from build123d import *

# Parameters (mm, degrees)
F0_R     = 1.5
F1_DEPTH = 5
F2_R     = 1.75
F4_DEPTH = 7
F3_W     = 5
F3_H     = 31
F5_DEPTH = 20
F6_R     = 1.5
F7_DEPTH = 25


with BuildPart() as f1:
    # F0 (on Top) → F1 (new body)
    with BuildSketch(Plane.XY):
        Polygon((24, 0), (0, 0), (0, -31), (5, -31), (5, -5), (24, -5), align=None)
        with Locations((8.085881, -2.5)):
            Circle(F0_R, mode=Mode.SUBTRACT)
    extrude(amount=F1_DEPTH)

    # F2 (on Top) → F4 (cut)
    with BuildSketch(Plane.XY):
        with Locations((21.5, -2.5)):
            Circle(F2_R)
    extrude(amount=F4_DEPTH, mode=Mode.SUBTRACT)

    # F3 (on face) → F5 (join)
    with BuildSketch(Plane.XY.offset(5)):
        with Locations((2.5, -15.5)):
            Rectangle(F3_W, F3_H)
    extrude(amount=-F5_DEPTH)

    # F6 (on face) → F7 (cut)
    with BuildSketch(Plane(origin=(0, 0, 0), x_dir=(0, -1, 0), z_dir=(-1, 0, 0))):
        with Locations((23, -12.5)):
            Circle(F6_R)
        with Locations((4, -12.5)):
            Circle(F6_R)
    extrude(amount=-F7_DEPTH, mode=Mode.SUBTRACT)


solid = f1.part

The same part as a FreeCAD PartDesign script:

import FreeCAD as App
import Part
import Sketcher
from FreeCAD import Vector
Q = App.Units.Quantity


def add_polygon(sketch, points):
    """Adds a closed chain of lines whose ends are joined by coincident constraints."""
    first, n = sketch.GeometryCount, len(points)
    for a, b in zip(points, points[1:] + points[:1]):
        sketch.addGeometry(Part.LineSegment(App.Vector(*a, 0), App.Vector(*b, 0)), False)
    for i in range(n):
        sketch.addConstraint(Sketcher.Constraint("Coincident", first + i, 2, first + (i + 1) % n, 1))

doc = App.newDocument("Part")
body = doc.addObject("PartDesign::Body", "Body")

sketch1 = doc.addObject("Sketcher::SketchObject", "Sketch")
body.addObject(sketch1)
sketch1.AttachmentSupport = (doc.XY_Plane, [""])
sketch1.MapMode = "FlatFace"
add_polygon(sketch1, [(24, 0), (0, 0), (0, -31), (5, -31), (5, -5), (24, -5)])
sketch1.addGeometry(Part.Circle(Vector(8.1, -2.5, 0), Vector(0, 0, 1), 1.5), False)
sketch1.addConstraint([
    Sketcher.Constraint("Horizontal", 0),
    Sketcher.Constraint("Vertical", 1),
    Sketcher.Constraint("Horizontal", 2),
    Sketcher.Constraint("Vertical", 3),
    Sketcher.Constraint("Horizontal", 4),
    Sketcher.Constraint("Vertical", 5),
    Sketcher.Constraint("Coincident", 0, 2, -1, 1),
    Sketcher.Constraint("Equal", 2, 5),
    Sketcher.Constraint("Diameter", 6, Q("3 mm")),
    Sketcher.Constraint("DistanceX", 0, 2, 0, 1, Q("24 mm")),
    Sketcher.Constraint("DistanceX", 2, 1, 2, 2, Q("5 mm")),
    Sketcher.Constraint("DistanceY", 1, 2, 1, 1, Q("31 mm")),
    Sketcher.Constraint("DistanceY", 6, 3, -1, 1, Q("2.5 mm")),
    Sketcher.Constraint("DistanceX", -1, 1, 6, 3, Q("8.085881 mm")),
])
pad1 = doc.addObject("PartDesign::Pad", "Pad")
body.addObject(pad1)
pad1.Profile = sketch1
pad1.Length = 5

sketch2 = doc.addObject("Sketcher::SketchObject", "Sketch001")
body.addObject(sketch2)
sketch2.AttachmentSupport = (doc.XY_Plane, [""])
sketch2.MapMode = "FlatFace"
sketch2.addGeometry(Part.Circle(Vector(21.5, -2.5, 0), Vector(0, 0, 1), 1.8), False)
sketch2.addConstraint([
    Sketcher.Constraint("Diameter", 0, Q("3.5 mm")),
    Sketcher.Constraint("DistanceX", -1, 1, 0, 3, Q("21.5 mm")),
    Sketcher.Constraint("DistanceY", 0, 3, -1, 1, Q("2.5 mm")),
])
pocket1 = doc.addObject("PartDesign::Pocket", "Pocket")
body.addObject(pocket1)
pocket1.Profile = sketch2
pocket1.Length = 7
pocket1.Reversed = True

sketch3 = doc.addObject("Sketcher::SketchObject", "Sketch002")
body.addObject(sketch3)
sketch3.AttachmentSupport = (doc.XY_Plane, [""])
sketch3.MapMode = "FlatFace"
sketch3.AttachmentOffset = App.Placement(Vector(0, 0, 5), App.Rotation())
add_polygon(sketch3, [(0, 0), (0, -31), (5, -31), (5, 0)])
sketch3.addConstraint([
    Sketcher.Constraint("Vertical", 0),
    Sketcher.Constraint("Horizontal", 1),
    Sketcher.Constraint("Vertical", 2),
    Sketcher.Constraint("Horizontal", 3),
    Sketcher.Constraint("Coincident", 3, 2, -1, 1),
    Sketcher.Constraint("DistanceX", 1, 1, 1, 2, Q("5 mm")),
    Sketcher.Constraint("DistanceY", 0, 2, 0, 1, Q("31 mm")),
])
pad2 = doc.addObject("PartDesign::Pad", "Pad001")
body.addObject(pad2)
pad2.Profile = sketch3
pad2.Length = 20
pad2.Reversed = True

sketch4 = doc.addObject("Sketcher::SketchObject", "Sketch003")
body.addObject(sketch4)
sketch4.AttachmentSupport = (doc.YZ_Plane, [""])
sketch4.MapMode = "FlatFace"
sketch4.addGeometry([
    Part.Circle(Vector(-23, -12.5, 0), Vector(0, 0, 1), 1.5),
    Part.Circle(Vector(-4, -12.5, 0), Vector(0, 0, 1), 1.5),
], False)
sketch4.addConstraint([
    Sketcher.Constraint("Equal", 0, 1),
    Sketcher.Constraint("Horizontal", 0, 3, 1, 3),
    Sketcher.Constraint("Diameter", 0, Q("3 mm")),
    Sketcher.Constraint("DistanceX", 0, 3, -1, 1, Q("23 mm")),
    Sketcher.Constraint("DistanceX", 1, 3, -1, 1, Q("4 mm")),
    Sketcher.Constraint("DistanceY", 0, 3, -1, 1, Q("12.5 mm")),
])
pocket2 = doc.addObject("PartDesign::Pocket", "Pocket001")
body.addObject(pocket2)
pocket2.Profile = sketch4
pocket2.Length = 25
pocket2.Reversed = True

doc.recompute()
